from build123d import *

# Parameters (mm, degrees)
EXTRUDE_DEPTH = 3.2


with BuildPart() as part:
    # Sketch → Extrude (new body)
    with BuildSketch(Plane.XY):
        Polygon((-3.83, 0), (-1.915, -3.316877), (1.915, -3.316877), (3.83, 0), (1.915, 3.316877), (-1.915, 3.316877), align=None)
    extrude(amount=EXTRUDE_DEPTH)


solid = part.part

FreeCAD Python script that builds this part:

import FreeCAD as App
import Part
import Sketcher
Q = App.Units.Quantity

doc = App.newDocument("Part")
body = doc.addObject("PartDesign::Body", "Body")

sketch1 = doc.addObject("Sketcher::SketchObject", "Sketch")
body.addObject(sketch1)
sketch1.AttachmentSupport = (doc.XY_Plane, [""])
sketch1.MapMode = "FlatFace"
sketch1.addGeometry(Part.LineSegment(App.Vector(-3.8, 0, 0), App.Vector(-1.9, -3.3, 0)), False)
sketch1.addGeometry(Part.LineSegment(App.Vector(-1.9, -3.3, 0), App.Vector(1.9, -3.3, 0)), False)
sketch1.addGeometry(Part.LineSegment(App.Vector(1.9, -3.3, 0), App.Vector(3.8, 0, 0)), False)
sketch1.addGeometry(Part.LineSegment(App.Vector(3.8, 0, 0), App.Vector(1.9, 3.3, 0)), False)
sketch1.addGeometry(Part.LineSegment(App.Vector(1.9, 3.3, 0), App.Vector(-1.9, 3.3, 0)), False)
sketch1.addGeometry(Part.LineSegment(App.Vector(-1.9, 3.3, 0), App.Vector(-3.8, 0, 0)), False)
sketch1.addConstraint(Sketcher.Constraint("Coincident", 0, 2, 1, 1))
sketch1.addConstraint(Sketcher.Constraint("Coincident", 1, 2, 2, 1))
sketch1.addConstraint(Sketcher.Constraint("Coincident", 2, 2, 3, 1))
sketch1.addConstraint(Sketcher.Constraint("Coincident", 3, 2, 4, 1))
sketch1.addConstraint(Sketcher.Constraint("Coincident", 4, 2, 5, 1))
sketch1.addConstraint(Sketcher.Constraint("Coincident", 5, 2, 0, 1))
sketch1.addConstraint(Sketcher.Constraint("Horizontal", 1))
sketch1.addConstraint(Sketcher.Constraint("Horizontal", 4))
sketch1.addConstraint(Sketcher.Constraint("Symmetric", 0, 2, 3, 2, -1, 1))
sketch1.addConstraint(Sketcher.Constraint("Symmetric", 2, 2, 5, 2, -1, 1))
sketch1.addConstraint(Sketcher.Constraint("PointOnObject", 2, 2, -1))
sketch1.addConstraint(Sketcher.Constraint("Parallel", 2, 5))
sketch1.addConstraint(Sketcher.Constraint("Vertical", 1, 2, 3, 2))
sketch1.addConstraint(Sketcher.Constraint("Angle", 0, Q("-59.999998 deg")))
sketch1.addConstraint(Sketcher.Constraint("DistanceX", 1, 1, 1, 2, Q("3.83 mm")))
sketch1.addConstraint(Sketcher.Constraint("Distance", 0, Q("3.83 mm")))
pad1 = doc.addObject("PartDesign::Pad", "Pad")
body.addObject(pad1)
pad1.Profile = sketch1
pad1.Length = 3.2

doc.recompute()
